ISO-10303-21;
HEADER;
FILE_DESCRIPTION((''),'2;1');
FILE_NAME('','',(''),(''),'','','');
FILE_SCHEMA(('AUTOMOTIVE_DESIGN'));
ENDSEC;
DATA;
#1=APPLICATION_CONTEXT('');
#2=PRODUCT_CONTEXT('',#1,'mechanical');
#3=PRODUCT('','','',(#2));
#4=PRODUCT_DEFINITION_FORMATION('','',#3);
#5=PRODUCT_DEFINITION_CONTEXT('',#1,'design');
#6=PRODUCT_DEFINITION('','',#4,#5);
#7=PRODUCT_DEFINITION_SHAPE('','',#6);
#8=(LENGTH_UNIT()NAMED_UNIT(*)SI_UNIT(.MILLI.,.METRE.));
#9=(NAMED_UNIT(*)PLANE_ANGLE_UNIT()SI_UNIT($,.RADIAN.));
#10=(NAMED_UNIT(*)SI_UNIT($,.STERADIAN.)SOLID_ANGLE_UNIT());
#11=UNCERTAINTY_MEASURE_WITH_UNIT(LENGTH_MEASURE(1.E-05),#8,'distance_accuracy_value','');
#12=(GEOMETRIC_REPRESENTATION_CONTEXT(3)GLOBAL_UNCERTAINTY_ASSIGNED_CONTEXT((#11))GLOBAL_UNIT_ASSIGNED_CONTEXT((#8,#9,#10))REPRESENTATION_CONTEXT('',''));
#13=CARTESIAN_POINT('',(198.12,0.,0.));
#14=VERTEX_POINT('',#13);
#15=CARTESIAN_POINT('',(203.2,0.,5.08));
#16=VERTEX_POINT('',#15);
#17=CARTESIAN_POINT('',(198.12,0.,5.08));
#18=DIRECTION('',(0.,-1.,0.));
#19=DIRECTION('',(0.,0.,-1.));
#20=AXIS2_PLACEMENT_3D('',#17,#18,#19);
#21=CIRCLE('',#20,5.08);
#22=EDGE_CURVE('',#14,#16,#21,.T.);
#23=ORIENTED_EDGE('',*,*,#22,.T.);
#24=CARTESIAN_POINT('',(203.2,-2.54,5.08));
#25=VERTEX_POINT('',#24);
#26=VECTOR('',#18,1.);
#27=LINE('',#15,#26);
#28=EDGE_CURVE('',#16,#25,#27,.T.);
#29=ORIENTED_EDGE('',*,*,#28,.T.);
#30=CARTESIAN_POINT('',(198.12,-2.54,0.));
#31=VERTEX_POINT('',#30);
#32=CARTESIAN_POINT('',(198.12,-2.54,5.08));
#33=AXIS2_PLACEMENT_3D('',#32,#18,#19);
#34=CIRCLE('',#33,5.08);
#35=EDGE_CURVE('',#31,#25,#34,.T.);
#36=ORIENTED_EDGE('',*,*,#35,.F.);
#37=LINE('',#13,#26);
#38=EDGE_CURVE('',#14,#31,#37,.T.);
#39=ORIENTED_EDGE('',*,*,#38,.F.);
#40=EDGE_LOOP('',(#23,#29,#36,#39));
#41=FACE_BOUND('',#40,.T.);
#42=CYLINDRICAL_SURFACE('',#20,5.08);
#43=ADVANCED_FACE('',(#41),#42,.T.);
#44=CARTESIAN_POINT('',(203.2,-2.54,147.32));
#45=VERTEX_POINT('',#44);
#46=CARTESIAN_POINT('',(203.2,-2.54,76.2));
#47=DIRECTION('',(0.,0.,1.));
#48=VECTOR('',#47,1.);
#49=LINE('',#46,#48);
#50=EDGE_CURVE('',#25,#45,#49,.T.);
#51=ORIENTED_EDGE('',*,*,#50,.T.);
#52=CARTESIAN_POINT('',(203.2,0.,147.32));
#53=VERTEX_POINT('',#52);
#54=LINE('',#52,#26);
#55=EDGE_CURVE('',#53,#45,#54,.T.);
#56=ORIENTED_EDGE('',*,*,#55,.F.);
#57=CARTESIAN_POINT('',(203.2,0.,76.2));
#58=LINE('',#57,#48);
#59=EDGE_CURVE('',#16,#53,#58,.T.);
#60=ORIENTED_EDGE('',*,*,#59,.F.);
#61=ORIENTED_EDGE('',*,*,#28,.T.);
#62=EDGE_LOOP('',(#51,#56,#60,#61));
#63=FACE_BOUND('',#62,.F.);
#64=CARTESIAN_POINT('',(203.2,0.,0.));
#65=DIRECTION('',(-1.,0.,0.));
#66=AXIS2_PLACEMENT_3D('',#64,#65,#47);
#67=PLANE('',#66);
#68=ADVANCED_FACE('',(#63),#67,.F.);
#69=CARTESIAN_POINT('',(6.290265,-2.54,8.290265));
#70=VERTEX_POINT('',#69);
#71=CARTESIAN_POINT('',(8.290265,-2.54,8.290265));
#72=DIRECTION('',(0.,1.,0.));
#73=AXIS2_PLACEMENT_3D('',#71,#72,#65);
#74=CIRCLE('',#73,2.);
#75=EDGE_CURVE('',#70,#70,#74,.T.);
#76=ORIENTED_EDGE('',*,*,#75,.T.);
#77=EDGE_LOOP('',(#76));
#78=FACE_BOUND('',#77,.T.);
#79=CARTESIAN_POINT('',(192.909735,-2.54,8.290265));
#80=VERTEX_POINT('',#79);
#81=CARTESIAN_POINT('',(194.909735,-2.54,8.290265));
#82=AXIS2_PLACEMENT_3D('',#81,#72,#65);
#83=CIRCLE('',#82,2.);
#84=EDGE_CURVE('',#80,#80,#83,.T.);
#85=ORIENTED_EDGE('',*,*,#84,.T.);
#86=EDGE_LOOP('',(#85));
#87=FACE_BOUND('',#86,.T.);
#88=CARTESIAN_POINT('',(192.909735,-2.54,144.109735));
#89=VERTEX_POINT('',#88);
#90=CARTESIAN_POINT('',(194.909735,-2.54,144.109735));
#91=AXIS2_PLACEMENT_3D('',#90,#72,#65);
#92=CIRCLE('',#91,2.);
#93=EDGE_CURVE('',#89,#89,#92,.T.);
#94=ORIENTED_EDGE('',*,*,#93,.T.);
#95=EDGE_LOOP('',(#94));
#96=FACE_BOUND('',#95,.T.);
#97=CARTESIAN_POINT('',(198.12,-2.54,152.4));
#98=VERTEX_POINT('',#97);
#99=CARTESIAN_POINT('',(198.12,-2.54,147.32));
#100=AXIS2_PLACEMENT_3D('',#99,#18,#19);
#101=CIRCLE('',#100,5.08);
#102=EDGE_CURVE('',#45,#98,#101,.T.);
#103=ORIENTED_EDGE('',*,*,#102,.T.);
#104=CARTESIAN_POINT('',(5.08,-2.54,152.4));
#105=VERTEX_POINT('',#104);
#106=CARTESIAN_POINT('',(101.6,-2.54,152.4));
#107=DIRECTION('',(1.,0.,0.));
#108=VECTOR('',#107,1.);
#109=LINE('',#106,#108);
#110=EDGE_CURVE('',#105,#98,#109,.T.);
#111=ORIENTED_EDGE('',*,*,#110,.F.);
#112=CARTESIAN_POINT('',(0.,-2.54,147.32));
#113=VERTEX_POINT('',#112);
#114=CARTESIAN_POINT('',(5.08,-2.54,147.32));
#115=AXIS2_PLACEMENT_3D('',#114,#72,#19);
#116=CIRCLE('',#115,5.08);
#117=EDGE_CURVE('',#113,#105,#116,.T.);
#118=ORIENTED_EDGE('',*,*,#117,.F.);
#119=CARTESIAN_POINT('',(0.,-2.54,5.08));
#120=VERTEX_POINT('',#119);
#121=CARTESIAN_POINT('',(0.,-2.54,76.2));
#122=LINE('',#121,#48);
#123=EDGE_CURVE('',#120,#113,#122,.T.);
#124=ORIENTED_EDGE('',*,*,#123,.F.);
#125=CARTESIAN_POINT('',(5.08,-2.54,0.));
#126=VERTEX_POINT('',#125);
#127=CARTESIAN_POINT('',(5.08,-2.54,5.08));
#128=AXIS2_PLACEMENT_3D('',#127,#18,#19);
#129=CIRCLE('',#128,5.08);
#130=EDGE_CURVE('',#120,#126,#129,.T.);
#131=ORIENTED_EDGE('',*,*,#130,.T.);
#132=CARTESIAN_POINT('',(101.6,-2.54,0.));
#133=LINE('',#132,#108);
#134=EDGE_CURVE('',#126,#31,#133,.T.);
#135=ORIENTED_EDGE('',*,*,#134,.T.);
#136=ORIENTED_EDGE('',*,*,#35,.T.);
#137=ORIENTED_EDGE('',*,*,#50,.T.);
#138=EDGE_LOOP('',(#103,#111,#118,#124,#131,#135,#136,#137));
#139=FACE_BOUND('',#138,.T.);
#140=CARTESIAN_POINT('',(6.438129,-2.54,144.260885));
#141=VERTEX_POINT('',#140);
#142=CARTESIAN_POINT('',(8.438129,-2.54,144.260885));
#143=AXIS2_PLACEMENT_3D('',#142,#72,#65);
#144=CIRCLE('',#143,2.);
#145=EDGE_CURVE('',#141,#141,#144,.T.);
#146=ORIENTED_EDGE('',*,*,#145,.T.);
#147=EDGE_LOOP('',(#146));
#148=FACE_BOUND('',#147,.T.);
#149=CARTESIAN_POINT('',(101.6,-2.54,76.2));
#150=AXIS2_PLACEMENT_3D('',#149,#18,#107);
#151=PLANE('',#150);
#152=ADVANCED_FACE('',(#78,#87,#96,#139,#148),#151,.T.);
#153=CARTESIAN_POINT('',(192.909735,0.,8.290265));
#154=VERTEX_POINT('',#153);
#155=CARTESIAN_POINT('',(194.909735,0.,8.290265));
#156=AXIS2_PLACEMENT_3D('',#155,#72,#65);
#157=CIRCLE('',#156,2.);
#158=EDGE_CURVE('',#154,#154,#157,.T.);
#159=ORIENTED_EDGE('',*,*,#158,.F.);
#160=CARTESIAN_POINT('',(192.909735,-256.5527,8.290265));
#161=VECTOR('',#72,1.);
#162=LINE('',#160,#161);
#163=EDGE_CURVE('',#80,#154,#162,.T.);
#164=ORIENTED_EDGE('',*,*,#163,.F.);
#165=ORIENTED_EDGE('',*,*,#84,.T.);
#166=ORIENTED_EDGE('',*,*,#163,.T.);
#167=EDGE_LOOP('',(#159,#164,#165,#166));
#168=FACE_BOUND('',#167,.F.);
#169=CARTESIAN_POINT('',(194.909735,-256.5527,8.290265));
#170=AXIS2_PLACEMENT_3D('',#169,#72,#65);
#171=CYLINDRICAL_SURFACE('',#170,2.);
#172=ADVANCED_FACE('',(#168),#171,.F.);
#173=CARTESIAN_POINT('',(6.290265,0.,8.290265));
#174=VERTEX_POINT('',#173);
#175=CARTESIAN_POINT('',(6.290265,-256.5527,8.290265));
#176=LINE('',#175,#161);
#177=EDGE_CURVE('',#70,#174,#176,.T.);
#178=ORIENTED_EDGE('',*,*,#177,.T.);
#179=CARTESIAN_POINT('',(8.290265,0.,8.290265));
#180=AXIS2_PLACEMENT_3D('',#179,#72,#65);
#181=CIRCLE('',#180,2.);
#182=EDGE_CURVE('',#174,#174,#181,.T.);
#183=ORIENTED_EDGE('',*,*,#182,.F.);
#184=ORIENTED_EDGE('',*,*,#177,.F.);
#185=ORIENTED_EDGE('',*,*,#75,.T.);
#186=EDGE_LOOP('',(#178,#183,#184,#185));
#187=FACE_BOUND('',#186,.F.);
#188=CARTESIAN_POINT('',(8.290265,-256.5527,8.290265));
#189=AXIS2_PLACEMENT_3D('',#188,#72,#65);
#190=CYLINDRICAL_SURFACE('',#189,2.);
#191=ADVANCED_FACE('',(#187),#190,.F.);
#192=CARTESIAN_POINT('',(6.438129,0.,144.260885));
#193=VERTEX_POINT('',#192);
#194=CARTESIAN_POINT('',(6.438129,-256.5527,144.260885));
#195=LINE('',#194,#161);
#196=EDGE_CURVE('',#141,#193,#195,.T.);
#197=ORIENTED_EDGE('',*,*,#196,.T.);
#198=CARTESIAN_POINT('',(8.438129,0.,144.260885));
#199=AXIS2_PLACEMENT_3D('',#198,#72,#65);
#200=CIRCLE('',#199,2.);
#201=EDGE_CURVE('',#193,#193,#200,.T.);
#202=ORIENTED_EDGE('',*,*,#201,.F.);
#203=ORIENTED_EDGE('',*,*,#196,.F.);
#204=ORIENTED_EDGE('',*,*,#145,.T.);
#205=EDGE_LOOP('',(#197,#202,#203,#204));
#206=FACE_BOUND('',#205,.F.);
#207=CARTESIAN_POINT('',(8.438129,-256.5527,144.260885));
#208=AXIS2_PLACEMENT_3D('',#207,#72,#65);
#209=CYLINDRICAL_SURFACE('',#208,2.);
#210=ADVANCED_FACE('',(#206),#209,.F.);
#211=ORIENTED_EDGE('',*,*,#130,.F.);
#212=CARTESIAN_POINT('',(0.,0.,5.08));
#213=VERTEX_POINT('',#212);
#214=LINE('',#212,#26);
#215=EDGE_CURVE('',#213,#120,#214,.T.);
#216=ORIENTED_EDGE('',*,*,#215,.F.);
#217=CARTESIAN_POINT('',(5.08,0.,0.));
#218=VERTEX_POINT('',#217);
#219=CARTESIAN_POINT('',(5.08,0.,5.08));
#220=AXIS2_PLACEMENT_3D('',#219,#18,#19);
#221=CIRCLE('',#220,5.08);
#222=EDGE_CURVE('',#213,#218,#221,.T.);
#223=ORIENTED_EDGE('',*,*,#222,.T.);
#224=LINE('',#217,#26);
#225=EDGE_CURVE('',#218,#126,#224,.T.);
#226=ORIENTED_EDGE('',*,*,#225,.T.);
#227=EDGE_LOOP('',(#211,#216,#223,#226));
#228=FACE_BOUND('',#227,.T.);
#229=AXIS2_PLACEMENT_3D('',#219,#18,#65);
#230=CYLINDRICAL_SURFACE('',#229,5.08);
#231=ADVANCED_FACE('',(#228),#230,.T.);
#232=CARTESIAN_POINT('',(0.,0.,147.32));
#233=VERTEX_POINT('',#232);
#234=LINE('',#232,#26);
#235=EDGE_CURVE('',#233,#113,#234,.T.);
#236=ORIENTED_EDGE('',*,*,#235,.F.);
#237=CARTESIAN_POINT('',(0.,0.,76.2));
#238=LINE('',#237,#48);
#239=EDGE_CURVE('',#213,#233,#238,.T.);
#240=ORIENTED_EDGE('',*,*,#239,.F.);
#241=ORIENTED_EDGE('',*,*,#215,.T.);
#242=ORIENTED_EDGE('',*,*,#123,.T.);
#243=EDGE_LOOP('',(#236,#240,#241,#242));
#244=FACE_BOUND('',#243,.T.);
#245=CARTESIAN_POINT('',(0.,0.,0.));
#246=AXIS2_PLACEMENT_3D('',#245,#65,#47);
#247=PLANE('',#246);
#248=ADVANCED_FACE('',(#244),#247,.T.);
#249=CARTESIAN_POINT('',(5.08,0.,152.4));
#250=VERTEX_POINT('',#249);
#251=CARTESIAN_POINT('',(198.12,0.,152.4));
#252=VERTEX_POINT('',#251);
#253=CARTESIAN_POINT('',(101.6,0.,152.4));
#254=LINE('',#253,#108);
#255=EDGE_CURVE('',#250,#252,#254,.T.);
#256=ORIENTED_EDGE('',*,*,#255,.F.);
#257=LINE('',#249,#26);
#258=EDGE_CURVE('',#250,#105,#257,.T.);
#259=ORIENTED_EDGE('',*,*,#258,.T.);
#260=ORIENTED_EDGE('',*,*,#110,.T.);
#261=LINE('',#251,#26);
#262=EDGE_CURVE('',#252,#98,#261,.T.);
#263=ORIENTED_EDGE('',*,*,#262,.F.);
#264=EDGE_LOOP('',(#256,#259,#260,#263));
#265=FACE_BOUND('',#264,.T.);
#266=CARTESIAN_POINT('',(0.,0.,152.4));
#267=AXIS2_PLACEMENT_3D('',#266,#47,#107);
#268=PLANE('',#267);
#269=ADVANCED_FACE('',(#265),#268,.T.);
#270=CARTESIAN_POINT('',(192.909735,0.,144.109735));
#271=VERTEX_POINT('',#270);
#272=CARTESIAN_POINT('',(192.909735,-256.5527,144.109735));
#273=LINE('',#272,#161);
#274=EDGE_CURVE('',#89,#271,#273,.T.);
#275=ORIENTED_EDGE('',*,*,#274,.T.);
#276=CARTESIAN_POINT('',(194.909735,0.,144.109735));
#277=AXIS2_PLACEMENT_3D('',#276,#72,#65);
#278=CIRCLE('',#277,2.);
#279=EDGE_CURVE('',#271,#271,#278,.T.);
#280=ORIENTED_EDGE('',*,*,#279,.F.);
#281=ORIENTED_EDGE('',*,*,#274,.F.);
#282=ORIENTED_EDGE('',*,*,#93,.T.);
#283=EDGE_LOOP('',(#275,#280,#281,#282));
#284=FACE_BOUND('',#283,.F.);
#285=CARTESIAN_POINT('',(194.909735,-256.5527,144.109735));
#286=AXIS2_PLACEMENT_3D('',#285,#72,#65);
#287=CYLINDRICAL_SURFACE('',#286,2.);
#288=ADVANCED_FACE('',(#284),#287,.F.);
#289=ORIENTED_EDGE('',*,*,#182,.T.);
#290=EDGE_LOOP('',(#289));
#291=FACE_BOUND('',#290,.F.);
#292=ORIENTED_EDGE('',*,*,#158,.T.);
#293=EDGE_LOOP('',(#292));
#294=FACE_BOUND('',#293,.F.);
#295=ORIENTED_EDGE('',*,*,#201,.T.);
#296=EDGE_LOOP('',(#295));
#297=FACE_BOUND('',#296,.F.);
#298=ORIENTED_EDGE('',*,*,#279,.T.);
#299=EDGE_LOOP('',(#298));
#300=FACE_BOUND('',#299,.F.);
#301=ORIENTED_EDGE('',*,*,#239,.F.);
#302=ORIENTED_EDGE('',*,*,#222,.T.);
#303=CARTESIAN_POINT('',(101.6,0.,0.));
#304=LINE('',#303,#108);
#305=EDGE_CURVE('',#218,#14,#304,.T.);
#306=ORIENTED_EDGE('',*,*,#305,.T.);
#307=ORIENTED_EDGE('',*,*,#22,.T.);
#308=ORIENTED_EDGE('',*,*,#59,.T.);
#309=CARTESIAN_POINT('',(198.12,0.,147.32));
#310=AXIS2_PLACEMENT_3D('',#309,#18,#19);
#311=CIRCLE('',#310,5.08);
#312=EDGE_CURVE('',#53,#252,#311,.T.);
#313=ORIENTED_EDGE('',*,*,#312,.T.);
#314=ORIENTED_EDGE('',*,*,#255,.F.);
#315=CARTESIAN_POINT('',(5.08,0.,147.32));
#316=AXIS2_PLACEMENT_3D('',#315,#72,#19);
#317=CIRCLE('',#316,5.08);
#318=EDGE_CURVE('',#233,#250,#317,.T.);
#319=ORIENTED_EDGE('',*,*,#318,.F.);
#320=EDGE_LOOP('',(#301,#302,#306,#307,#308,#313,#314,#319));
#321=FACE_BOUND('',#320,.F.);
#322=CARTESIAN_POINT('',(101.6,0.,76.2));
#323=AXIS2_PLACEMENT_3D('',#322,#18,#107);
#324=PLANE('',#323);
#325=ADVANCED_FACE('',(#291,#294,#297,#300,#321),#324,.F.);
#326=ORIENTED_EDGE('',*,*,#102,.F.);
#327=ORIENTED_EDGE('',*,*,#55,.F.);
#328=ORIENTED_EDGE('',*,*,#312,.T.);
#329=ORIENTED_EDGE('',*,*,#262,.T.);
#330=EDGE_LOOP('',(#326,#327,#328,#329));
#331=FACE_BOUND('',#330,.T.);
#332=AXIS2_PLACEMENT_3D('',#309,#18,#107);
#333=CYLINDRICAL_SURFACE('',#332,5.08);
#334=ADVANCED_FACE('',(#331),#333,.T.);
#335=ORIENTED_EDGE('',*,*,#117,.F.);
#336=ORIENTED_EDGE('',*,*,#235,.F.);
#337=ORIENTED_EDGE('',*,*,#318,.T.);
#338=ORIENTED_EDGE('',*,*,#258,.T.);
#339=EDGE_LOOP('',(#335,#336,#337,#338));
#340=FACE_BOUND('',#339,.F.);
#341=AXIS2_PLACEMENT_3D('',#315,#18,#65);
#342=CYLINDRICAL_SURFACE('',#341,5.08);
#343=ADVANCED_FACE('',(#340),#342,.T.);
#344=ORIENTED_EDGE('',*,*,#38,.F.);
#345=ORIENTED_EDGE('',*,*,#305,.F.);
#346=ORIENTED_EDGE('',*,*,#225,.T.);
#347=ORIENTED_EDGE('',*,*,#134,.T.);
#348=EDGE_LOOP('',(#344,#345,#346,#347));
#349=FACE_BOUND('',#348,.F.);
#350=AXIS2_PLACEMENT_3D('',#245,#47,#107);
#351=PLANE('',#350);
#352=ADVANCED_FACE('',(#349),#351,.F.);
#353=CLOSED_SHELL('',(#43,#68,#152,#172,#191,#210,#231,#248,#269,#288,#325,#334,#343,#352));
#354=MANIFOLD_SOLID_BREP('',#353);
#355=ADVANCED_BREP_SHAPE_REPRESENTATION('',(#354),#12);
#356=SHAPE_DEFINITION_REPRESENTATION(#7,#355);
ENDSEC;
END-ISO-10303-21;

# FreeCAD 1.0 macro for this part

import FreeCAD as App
import Part
import Sketcher
from FreeCAD import Vector
Q = App.Units.Quantity


def edges_at(feature, points):
    """Names of the edges that pass closest to the given points."""
    edges = feature.Shape.Edges
    near = lambda p: min(range(len(edges)), key=lambda i: edges[i].distToShape(Part.Vertex(*p))[0])
    return sorted({f"Edge{near(p) + 1}" for p in points})


def add_polygon(sketch, points):
    """Adds a closed chain of lines whose ends are joined by coincident constraints."""
    first, n = sketch.GeometryCount, len(points)
    for a, b in zip(points, points[1:] + points[:1]):
        sketch.addGeometry(Part.LineSegment(App.Vector(*a, 0), App.Vector(*b, 0)), False)
    for i in range(n):
        sketch.addConstraint(Sketcher.Constraint("Coincident", first + i, 2, first + (i + 1) % n, 1))

doc = App.newDocument("Part")
body = doc.addObject("PartDesign::Body", "Body")

sketch1 = doc.addObject("Sketcher::SketchObject", "Sketch")
body.addObject(sketch1)
sketch1.AttachmentSupport = (doc.XZ_Plane, [""])
sketch1.MapMode = "FlatFace"
add_polygon(sketch1, [(0, 152), (0, 0), (203, 0), (203, 152)])
sketch1.addConstraint([
    Sketcher.Constraint("Vertical", 0),
    Sketcher.Constraint("Horizontal", 1),
    Sketcher.Constraint("Vertical", 2),
    Sketcher.Constraint("Horizontal", 3),
    Sketcher.Constraint("Coincident", 0, 2, -1, 1),
    Sketcher.Constraint("DistanceX", 1, 1, 1, 2, Q("8 in")),
    Sketcher.Constraint("DistanceY", 0, 2, 0, 1, Q("6 in")),
])
pad1 = doc.addObject("PartDesign::Pad", "Pad")
body.addObject(pad1)
pad1.Profile = sketch1
pad1.Length = Q("0.1 in")
doc.recompute()

fillet = doc.addObject("PartDesign::Fillet", "Fillet")
body.addObject(fillet)
fillet.Base = (pad1, edges_at(pad1, [
    (0, -1.27, 152.4),
    (0, -1.27, 0),
    (203.2, -1.27, 0),
    (203.2, -1.27, 152.4),
]))
fillet.Radius = Q("0.2 in")

sketch2 = doc.addObject("Sketcher::SketchObject", "Sketch001")
body.addObject(sketch2)
sketch2.AttachmentSupport = (doc.XZ_Plane, [""])
sketch2.MapMode = "FlatFace"
sketch2.AttachmentOffset = App.Placement(Vector(0, 0, 0.1 * 25.4), App.Rotation())
sketch2.addGeometry([
    Part.Circle(Vector(8.4, 144.3, 0), Vector(0, 0, 1), 2),
    Part.Circle(Vector(194.9, 144.1, 0), Vector(0, 0, 1), 2),
    Part.Circle(Vector(194.9, 8.3, 0), Vector(0, 0, 1), 2),
    Part.Circle(Vector(8.3, 8.3, 0), Vector(0, 0, 1), 2),
], False)
sketch2.addConstraint([
    Sketcher.Constraint("Equal", 0, 1),
    Sketcher.Constraint("Equal", 1, 2),
    Sketcher.Constraint("Equal", 2, 3),
    Sketcher.Constraint("Horizontal", 2, 3, 3, 3),
    Sketcher.Constraint("Vertical", 1, 3, 2, 3),
    Sketcher.Constraint("Diameter", 0, 4.0),
    Sketcher.Constraint("DistanceX", -1, 1, 0, 3, 8.438129),
    Sketcher.Constraint("DistanceY", 1, 3, 0, 3, 0.15115),
    Sketcher.Constraint("DistanceY", 2, 3, 1, 3, 135.81947),
    Sketcher.Constraint("DistanceX", 3, 3, 2, 3, 186.61947),
    Sketcher.Constraint("DistanceY", -1, 1, 0, 3, 144.260885),
    Sketcher.Constraint("DistanceX", -1, 1, 1, 3, 194.909735),
])
doc.recompute()
hole = doc.addObject("PartDesign::Hole", "Hole")
body.addObject(hole)
hole.Profile = sketch2
hole.ThreadType = "None"
hole.Diameter = 4
hole.DepthType = "ThroughAll"

doc.recompute()
